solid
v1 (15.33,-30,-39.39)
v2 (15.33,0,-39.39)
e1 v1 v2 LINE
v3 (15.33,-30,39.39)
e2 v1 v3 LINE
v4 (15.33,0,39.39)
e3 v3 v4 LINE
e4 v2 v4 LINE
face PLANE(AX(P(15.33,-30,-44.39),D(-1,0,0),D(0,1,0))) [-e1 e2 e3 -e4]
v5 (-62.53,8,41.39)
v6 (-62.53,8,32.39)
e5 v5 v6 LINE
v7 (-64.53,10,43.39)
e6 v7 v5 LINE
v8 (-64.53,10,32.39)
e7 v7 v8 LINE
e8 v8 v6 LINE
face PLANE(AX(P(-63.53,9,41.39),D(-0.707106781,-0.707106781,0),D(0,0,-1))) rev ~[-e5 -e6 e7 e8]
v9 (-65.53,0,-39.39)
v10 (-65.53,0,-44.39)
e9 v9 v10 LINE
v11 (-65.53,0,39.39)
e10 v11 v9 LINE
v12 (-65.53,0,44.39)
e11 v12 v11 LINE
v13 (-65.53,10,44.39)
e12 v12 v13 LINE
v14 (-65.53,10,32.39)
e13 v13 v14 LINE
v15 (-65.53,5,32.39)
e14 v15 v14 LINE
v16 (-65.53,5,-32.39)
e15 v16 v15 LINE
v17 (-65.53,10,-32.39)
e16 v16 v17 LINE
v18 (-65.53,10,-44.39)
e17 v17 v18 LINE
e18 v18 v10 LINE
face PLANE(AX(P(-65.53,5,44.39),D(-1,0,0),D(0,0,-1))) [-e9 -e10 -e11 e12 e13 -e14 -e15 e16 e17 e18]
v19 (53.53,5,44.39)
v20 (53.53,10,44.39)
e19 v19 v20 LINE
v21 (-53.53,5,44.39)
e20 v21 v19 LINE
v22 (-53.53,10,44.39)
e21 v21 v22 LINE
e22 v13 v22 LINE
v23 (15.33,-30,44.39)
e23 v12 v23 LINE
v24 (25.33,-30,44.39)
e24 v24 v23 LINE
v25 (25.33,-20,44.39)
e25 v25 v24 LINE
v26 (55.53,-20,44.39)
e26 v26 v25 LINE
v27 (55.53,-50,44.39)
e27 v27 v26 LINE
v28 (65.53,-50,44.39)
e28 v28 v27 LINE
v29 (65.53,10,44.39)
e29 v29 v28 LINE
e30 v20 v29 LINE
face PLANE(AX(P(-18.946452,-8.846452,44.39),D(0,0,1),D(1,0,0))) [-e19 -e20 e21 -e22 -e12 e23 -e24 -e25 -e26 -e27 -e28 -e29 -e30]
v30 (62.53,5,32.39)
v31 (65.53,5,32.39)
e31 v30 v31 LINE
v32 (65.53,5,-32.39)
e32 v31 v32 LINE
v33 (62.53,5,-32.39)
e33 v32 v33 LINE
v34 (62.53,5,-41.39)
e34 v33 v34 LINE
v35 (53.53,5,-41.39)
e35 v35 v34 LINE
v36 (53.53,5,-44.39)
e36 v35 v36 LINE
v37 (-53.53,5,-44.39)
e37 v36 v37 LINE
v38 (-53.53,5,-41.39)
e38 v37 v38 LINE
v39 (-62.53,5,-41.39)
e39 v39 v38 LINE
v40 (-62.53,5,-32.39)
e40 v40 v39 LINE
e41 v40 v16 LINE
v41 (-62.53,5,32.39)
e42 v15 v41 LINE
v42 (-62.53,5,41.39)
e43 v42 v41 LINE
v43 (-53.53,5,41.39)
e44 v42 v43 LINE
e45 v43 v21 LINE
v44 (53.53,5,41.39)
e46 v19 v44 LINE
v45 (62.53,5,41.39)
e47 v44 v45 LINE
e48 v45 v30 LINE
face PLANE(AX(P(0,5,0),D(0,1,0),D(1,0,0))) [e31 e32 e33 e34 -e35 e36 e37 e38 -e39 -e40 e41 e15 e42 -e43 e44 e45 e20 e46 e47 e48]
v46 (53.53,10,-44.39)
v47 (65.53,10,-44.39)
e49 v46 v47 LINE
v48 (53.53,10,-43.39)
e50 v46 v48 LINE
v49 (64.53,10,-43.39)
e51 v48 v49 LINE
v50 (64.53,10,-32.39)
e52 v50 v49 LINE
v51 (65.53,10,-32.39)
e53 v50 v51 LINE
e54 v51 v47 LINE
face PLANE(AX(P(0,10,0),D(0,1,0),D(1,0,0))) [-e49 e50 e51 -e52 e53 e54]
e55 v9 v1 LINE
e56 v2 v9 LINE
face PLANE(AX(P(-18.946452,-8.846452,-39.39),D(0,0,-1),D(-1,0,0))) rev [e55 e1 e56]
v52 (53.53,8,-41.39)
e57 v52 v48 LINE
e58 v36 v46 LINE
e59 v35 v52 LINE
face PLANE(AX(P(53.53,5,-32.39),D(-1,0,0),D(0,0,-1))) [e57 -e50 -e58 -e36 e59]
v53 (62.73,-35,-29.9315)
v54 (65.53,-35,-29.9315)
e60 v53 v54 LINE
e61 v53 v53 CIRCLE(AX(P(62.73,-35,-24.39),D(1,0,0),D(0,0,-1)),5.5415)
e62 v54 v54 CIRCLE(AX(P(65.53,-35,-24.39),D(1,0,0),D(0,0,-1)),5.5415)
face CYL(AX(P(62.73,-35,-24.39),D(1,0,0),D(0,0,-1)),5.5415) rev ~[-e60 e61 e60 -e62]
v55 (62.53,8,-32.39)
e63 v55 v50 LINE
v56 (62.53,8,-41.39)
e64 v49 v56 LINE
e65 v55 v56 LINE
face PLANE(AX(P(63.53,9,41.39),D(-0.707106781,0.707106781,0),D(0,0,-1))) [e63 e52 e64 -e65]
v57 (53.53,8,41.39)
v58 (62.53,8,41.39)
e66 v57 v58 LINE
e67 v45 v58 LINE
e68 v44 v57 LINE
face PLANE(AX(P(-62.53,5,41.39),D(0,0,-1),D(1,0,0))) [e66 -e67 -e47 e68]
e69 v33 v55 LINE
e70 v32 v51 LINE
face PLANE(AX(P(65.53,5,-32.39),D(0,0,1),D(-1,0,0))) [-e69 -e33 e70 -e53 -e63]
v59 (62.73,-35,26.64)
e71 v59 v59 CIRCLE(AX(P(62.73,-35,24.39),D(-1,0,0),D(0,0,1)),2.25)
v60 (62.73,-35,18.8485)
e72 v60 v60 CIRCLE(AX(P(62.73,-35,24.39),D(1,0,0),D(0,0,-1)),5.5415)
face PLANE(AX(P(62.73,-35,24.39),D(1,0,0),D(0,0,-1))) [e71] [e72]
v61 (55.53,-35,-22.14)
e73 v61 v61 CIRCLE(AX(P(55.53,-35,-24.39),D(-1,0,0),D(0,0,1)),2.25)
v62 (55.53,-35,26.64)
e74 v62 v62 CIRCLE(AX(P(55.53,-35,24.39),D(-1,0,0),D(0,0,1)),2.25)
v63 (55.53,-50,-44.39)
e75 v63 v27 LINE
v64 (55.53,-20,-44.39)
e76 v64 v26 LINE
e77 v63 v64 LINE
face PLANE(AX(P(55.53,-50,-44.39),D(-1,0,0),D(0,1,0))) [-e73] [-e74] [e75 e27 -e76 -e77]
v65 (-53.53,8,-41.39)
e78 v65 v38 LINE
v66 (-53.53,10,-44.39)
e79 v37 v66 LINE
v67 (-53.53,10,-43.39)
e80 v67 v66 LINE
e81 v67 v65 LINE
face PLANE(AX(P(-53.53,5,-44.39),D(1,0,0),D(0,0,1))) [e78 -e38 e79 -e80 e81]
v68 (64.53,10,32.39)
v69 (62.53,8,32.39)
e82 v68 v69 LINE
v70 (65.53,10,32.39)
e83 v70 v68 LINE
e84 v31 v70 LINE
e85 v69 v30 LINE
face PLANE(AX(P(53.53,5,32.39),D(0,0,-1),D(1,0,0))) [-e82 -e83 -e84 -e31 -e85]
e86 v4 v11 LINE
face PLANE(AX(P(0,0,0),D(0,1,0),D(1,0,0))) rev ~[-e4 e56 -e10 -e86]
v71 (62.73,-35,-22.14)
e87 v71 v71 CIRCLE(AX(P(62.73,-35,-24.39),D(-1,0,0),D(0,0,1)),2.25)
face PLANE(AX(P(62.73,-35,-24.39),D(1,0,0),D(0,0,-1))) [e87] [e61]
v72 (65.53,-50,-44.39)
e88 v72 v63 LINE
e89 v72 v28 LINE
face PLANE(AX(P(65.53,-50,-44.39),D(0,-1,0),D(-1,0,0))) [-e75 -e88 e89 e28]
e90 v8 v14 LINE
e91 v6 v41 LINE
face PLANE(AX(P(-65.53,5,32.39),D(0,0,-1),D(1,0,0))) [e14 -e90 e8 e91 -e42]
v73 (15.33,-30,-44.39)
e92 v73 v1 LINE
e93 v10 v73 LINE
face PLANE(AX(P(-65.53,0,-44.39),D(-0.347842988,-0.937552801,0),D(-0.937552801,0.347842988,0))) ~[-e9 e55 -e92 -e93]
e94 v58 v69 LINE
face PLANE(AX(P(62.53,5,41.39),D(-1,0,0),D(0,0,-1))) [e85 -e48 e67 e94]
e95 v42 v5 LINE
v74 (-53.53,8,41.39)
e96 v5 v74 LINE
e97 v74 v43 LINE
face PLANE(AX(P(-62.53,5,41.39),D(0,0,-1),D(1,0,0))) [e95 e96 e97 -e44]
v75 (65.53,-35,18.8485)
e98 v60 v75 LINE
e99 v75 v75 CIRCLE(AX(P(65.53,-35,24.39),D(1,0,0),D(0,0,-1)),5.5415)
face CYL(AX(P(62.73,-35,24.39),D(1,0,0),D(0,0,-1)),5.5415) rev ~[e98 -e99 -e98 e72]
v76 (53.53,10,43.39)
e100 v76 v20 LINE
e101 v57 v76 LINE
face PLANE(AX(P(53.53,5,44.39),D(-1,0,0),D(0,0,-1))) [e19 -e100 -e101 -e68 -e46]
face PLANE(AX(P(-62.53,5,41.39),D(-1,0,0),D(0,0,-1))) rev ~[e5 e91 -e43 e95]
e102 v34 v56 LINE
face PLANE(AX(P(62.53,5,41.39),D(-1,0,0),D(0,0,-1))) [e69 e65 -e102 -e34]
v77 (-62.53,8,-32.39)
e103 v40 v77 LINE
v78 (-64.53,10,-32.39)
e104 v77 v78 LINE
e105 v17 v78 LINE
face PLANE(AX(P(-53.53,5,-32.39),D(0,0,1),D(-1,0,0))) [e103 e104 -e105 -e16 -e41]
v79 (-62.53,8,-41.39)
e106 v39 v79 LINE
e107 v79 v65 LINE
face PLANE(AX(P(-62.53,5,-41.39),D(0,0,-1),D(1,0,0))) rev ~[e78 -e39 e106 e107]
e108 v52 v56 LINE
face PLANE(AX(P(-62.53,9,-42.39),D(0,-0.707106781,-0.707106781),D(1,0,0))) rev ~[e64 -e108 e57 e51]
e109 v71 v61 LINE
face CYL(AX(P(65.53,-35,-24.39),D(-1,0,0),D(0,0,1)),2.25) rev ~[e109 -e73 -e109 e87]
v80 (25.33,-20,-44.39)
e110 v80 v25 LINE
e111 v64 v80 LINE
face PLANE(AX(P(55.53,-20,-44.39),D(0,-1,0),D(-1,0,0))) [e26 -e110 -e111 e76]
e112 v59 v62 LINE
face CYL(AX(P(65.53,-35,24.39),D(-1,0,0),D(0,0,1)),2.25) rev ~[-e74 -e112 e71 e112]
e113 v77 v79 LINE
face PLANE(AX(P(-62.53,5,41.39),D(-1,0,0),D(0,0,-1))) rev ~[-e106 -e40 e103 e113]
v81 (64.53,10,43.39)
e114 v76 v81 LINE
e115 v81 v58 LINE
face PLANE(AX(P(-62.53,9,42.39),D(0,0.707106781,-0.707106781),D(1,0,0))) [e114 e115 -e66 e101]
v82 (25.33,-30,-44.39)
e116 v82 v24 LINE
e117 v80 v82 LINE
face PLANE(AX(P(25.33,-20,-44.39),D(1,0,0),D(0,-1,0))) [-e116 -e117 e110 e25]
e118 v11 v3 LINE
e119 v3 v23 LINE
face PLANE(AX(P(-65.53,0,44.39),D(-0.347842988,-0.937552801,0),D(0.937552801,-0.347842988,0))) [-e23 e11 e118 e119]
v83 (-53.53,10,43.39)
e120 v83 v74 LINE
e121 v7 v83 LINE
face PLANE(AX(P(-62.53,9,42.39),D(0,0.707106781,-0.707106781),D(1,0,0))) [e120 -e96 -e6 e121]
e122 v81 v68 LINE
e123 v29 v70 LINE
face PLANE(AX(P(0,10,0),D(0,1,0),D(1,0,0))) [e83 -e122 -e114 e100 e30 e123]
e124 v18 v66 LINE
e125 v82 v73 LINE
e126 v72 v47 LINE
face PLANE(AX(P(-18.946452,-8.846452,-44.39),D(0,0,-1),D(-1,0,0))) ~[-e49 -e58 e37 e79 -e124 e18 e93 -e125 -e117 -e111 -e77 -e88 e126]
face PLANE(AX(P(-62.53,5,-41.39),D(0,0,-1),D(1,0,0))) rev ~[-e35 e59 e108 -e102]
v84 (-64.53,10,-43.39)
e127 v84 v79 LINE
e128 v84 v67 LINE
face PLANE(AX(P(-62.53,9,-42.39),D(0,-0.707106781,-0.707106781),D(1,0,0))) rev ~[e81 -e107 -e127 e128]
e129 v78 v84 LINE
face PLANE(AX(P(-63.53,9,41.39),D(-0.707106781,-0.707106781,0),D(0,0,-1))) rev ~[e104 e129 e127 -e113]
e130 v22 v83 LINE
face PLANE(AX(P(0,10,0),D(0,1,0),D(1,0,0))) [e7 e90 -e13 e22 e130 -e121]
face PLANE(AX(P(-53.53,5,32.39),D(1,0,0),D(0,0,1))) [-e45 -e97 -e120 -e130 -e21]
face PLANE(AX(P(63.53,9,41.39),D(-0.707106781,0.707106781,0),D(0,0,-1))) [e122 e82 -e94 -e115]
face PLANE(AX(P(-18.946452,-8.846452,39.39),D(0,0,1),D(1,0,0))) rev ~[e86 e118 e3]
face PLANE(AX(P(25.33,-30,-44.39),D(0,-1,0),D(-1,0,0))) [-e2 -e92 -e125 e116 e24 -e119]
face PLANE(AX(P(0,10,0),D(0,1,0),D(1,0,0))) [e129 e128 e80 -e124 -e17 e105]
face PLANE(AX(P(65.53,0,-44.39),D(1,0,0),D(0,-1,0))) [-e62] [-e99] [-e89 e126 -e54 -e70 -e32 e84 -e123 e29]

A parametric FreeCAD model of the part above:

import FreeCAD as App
import Part
import Sketcher


def edges_at(feature, points):
    """Names of the edges that pass closest to the given points."""
    edges = feature.Shape.Edges
    near = lambda p: min(range(len(edges)), key=lambda i: edges[i].distToShape(Part.Vertex(*p))[0])
    return sorted({f"Edge{near(p) + 1}" for p in points})

doc = App.newDocument("Part")
body = doc.addObject("PartDesign::Body", "Body")

# Sketch on XZ plane
sketch1 = body.newObject("Sketcher::SketchObject", "Sketch")
sketch1.AttachmentSupport = (doc.getObject("XZ_Plane"), [""])
sketch1.MapMode = "FlatFace"
sketch1.addGeometry([
    Part.LineSegment(App.Vector(-66, -44, 0), App.Vector(-66, 44, 0)),
    Part.LineSegment(App.Vector(-66, 44, 0), App.Vector(66, 44, 0)),
    Part.LineSegment(App.Vector(66, 44, 0), App.Vector(66, -44, 0)),
    Part.LineSegment(App.Vector(66, -44, 0), App.Vector(-66, -44, 0)),
], False)
sketch1.addConstraint([
    Sketcher.Constraint("Coincident", 0, 2, 1, 1),
    Sketcher.Constraint("Coincident", 1, 2, 2, 1),
    Sketcher.Constraint("Coincident", 2, 2, 3, 1),
    Sketcher.Constraint("Coincident", 3, 2, 0, 1),
    Sketcher.Constraint("Vertical", 0),
    Sketcher.Constraint("Horizontal", 1),
    Sketcher.Constraint("Vertical", 2),
    Sketcher.Constraint("Horizontal", 3),
    Sketcher.Constraint("Symmetric", 0, 2, 2, 2, -1, 1),
    Sketcher.Constraint("DistanceX", 1, 1, 1, 2, 131.06),
    Sketcher.Constraint("DistanceY", 0, 1, 0, 2, 88.78),
])
pad1 = body.newObject("PartDesign::Pad", "Pad")
pad1.Profile = sketch1
pad1.Length = 5
pad1.Reversed = True

# Sketch on XZ plane
sketch2 = body.newObject("Sketcher::SketchObject", "Sketch001")
sketch2.AttachmentSupport = (doc.getObject("XZ_Plane"), [""])
sketch2.MapMode = "FlatFace"
sketch2.AttachmentOffset = App.Placement(App.Vector(0, 0, -5), App.Rotation())
sketch2.addGeometry([
    Part.LineSegment(App.Vector(-66, -44, 0), App.Vector(-66, 44, 0)),  # 0
    Part.LineSegment(App.Vector(-66, 44, 0), App.Vector(66, 44, 0)),  # 1
    Part.LineSegment(App.Vector(66, 44, 0), App.Vector(66, -44, 0)),  # 2
    Part.LineSegment(App.Vector(66, -44, 0), App.Vector(-66, -44, 0)),  # 3
    Part.LineSegment(App.Vector(63, 41, 0), App.Vector(-63, 41, 0)),  # 4
    Part.LineSegment(App.Vector(-63, 41, 0), App.Vector(-63, -41, 0)),  # 5
    Part.LineSegment(App.Vector(-63, -41, 0), App.Vector(63, -41, 0)),  # 6
    Part.LineSegment(App.Vector(63, -41, 0), App.Vector(63, 41, 0)),  # 7
], False)
sketch2.addConstraint([
    Sketcher.Constraint("Coincident", 0, 2, 1, 1),
    Sketcher.Constraint("Coincident", 1, 2, 2, 1),
    Sketcher.Constraint("Coincident", 2, 2, 3, 1),
    Sketcher.Constraint("Coincident", 3, 2, 0, 1),
    Sketcher.Constraint("Coincident", 4, 2, 5, 1),
    Sketcher.Constraint("Coincident", 5, 2, 6, 1),
    Sketcher.Constraint("Coincident", 6, 2, 7, 1),
    Sketcher.Constraint("Coincident", 7, 2, 4, 1),
    Sketcher.Constraint("Vertical", 0),
    Sketcher.Constraint("Horizontal", 1),
    Sketcher.Constraint("Vertical", 2),
    Sketcher.Constraint("Horizontal", 3),
    Sketcher.Constraint("Horizontal", 4),
    Sketcher.Constraint("Vertical", 5),
    Sketcher.Constraint("Horizontal", 6),
    Sketcher.Constraint("Vertical", 7),
    Sketcher.Constraint("Symmetric", 0, 2, 2, 2, -1, 1),
    Sketcher.Constraint("Symmetric", 4, 2, 6, 2, -1, 1),
    Sketcher.Constraint("DistanceX", 0, 2, 4, 2, 3.0),
    Sketcher.Constraint("DistanceY", 4, 2, 0, 2, 3.0),
    Sketcher.Constraint("DistanceX", 1, 1, 1, 2, 131.06),
    Sketcher.Constraint("DistanceY", 0, 1, 0, 2, 88.78),
])
pad2 = body.newObject("PartDesign::Pad", "Pad001")
pad2.Profile = sketch2
pad2.Length = 5
pad2.Reversed = True
doc.recompute()

chamfer = body.newObject("PartDesign::Chamfer", "Chamfer")
chamfer.Base = (pad2, edges_at(pad2, [
    (62.53, 10, 0),
    (0, 10, -41.39),
    (-62.53, 10, 0),
    (0, 10, 41.39),
]))
chamfer.Size = 2

# Sketch on XZ plane
sketch3 = body.newObject("Sketcher::SketchObject", "Sketch002")
sketch3.AttachmentSupport = (doc.getObject("XZ_Plane"), [""])
sketch3.MapMode = "FlatFace"
sketch3.AttachmentOffset = App.Placement(App.Vector(0, 0, -5), App.Rotation())
sketch3.addGeometry([
    Part.LineSegment(App.Vector(-66, -32, 0), App.Vector(-66, 32, 0)),  # 0
    Part.LineSegment(App.Vector(-66, 32, 0), App.Vector(-54, 32, 0)),  # 1
    Part.LineSegment(App.Vector(-54, 32, 0), App.Vector(-54, 44, 0)),  # 2
    Part.LineSegment(App.Vector(-54, 44, 0), App.Vector(54, 44, 0)),  # 3
    Part.LineSegment(App.Vector(54, 44, 0), App.Vector(54, 32, 0)),  # 4
    Part.LineSegment(App.Vector(54, 32, 0), App.Vector(66, 32, 0)),  # 5
    Part.LineSegment(App.Vector(66, 32, 0), App.Vector(66, -32, 0)),  # 6
    Part.LineSegment(App.Vector(66, -32, 0), App.Vector(54, -32, 0)),  # 7
    Part.LineSegment(App.Vector(54, -32, 0), App.Vector(54, -44, 0)),  # 8
    Part.LineSegment(App.Vector(54, -44, 0), App.Vector(-54, -44, 0)),  # 9
    Part.LineSegment(App.Vector(-54, -44, 0), App.Vector(-54, -32, 0)),  # 10
    Part.LineSegment(App.Vector(-54, -32, 0), App.Vector(-66, -32, 0)),  # 11
], False)
sketch3.addConstraint([
    Sketcher.Constraint("Coincident", 0, 2, 1, 1),
    Sketcher.Constraint("Coincident", 1, 2, 2, 1),
    Sketcher.Constraint("Coincident", 2, 2, 3, 1),
    Sketcher.Constraint("Coincident", 3, 2, 4, 1),
    Sketcher.Constraint("Coincident", 4, 2, 5, 1),
    Sketcher.Constraint("Coincident", 5, 2, 6, 1),
    Sketcher.Constraint("Coincident", 6, 2, 7, 1),
    Sketcher.Constraint("Coincident", 7, 2, 8, 1),
    Sketcher.Constraint("Coincident", 8, 2, 9, 1),
    Sketcher.Constraint("Coincident", 9, 2, 10, 1),
    Sketcher.Constraint("Coincident", 10, 2, 11, 1),
    Sketcher.Constraint("Coincident", 11, 2, 0, 1),
    Sketcher.Constraint("Vertical", 0),
    Sketcher.Constraint("Horizontal", 1),
    Sketcher.Constraint("Vertical", 2),
    Sketcher.Constraint("Horizontal", 3),
    Sketcher.Constraint("Vertical", 4),
    Sketcher.Constraint("Horizontal", 5),
    Sketcher.Constraint("Vertical", 6),
    Sketcher.Constraint("Horizontal", 7),
    Sketcher.Constraint("Vertical", 8),
    Sketcher.Constraint("Horizontal", 9),
    Sketcher.Constraint("Vertical", 10),
    Sketcher.Constraint("Horizontal", 11),
    Sketcher.Constraint("Symmetric", 0, 2, 6, 2, -1, 1),
    Sketcher.Constraint("Symmetric", 2, 2, 8, 2, -1, 1),
    Sketcher.Constraint("Symmetric", 4, 2, 10, 2, -1, 1),
    Sketcher.Constraint("Symmetric", 1, 2, 4, 2, -2),
    Sketcher.Constraint("Equal", 11, 2),
    Sketcher.Constraint("DistanceX", 1, 1, 1, 2, 12.0),
    Sketcher.Constraint("DistanceX", 3, 1, 3, 2, 107.06),
    Sketcher.Constraint("DistanceY", 0, 1, 0, 2, 64.78),
])
pocket1 = body.newObject("PartDesign::Pocket", "Pocket")
pocket1.Profile = sketch3
pocket1.Type = "ThroughAll"

# Sketch on XY plane
sketch4 = body.newObject("Sketcher::SketchObject", "Sketch003")
sketch4.AttachmentSupport = (doc.getObject("XY_Plane"), [""])
sketch4.MapMode = "FlatFace"
sketch4.AttachmentOffset = App.Placement(App.Vector(0, 0, -44.39), App.Rotation())
sketch4.addGeometry([
    Part.LineSegment(App.Vector(66, -50, 0), App.Vector(66, 0, 0)),  # 0
    Part.LineSegment(App.Vector(66, 0, 0), App.Vector(15, 0, 0)),  # 1
    Part.LineSegment(App.Vector(15, 0, 0), App.Vector(15, -30, 0)),  # 2
    Part.LineSegment(App.Vector(15, -30, 0), App.Vector(25, -30, 0)),  # 3
    Part.LineSegment(App.Vector(25, -30, 0), App.Vector(25, -20, 0)),  # 4
    Part.LineSegment(App.Vector(25, -20, 0), App.Vector(56, -20, 0)),  # 5
    Part.LineSegment(App.Vector(56, -20, 0), App.Vector(56, -50, 0)),  # 6
    Part.LineSegment(App.Vector(56, -50, 0), App.Vector(66, -50, 0)),  # 7
], False)
sketch4.addConstraint([
    Sketcher.Constraint("Coincident", 0, 2, 1, 1),
    Sketcher.Constraint("Coincident", 1, 2, 2, 1),
    Sketcher.Constraint("Coincident", 2, 2, 3, 1),
    Sketcher.Constraint("Coincident", 3, 2, 4, 1),
    Sketcher.Constraint("Coincident", 4, 2, 5, 1),
    Sketcher.Constraint("Coincident", 5, 2, 6, 1),
    Sketcher.Constraint("Coincident", 6, 2, 7, 1),
    Sketcher.Constraint("Coincident", 7, 2, 0, 1),
    Sketcher.Constraint("Vertical", 0),
    Sketcher.Constraint("Horizontal", 1),
    Sketcher.Constraint("Vertical", 2),
    Sketcher.Constraint("Horizontal", 3),
    Sketcher.Constraint("Vertical", 4),
    Sketcher.Constraint("Horizontal", 5),
    Sketcher.Constraint("Vertical", 6),
    Sketcher.Constraint("Horizontal", 7),
    Sketcher.Constraint("PointOnObject", 0, 2, -1),
    Sketcher.Constraint("Equal", 3, 7),
    Sketcher.Constraint("Equal", 7, 4),
    Sketcher.Constraint("Equal", 2, 6),
    Sketcher.Constraint("DistanceX", 3, 1, 3, 2, 10.0),
    Sketcher.Constraint("DistanceY", 0, 1, 0, 2, 50.0),
    Sketcher.Constraint("DistanceX", 1, 2, 1, 1, 50.2),
    Sketcher.Constraint("DistanceX", -1, 1, 0, 2, 65.53),
])
pad3 = body.newObject("PartDesign::Pad", "Pad002")
pad3.Profile = sketch4
pad3.Length = 88.78

# Sketch on XY plane
sketch5 = body.newObject("Sketcher::SketchObject", "Sketch004")
sketch5.AttachmentSupport = (doc.getObject("XY_Plane"), [""])
sketch5.MapMode = "FlatFace"
sketch5.AttachmentOffset = App.Placement(App.Vector(0, 0, 44.39), App.Rotation())
sketch5.addGeometry([
    Part.LineSegment(App.Vector(-66, 0, 0), App.Vector(15, -30, 0)),
    Part.LineSegment(App.Vector(15, -30, 0), App.Vector(15, 0, 0)),
    Part.LineSegment(App.Vector(15, 0, 0), App.Vector(-66, 0, 0)),
], False)
sketch5.addConstraint([
    Sketcher.Constraint("Coincident", 0, 2, 1, 1),
    Sketcher.Constraint("Coincident", 1, 2, 2, 1),
    Sketcher.Constraint("Coincident", 2, 2, 0, 1),
    Sketcher.Constraint("Vertical", 1),
    Sketcher.Constraint("Horizontal", 2),
    Sketcher.Constraint("PointOnObject", 1, 2, -1),
    Sketcher.Constraint("DistanceY", 1, 1, 1, 2, 30.0),
    Sketcher.Constraint("DistanceX", 2, 2, 2, 1, 80.86),
    Sketcher.Constraint("DistanceX", -1, 1, 0, 2, 15.33),
])
pad4 = body.newObject("PartDesign::Pad", "Pad003")
pad4.Profile = sketch5
pad4.Length = 5
pad4.Reversed = True
doc.recompute()

mirrored = body.newObject("PartDesign::Mirrored", "Mirrored")
mirrored.Originals = [pad4]
mirrored.MirrorPlane = (doc.getObject("XY_Plane"), [""])
body.Tip = mirrored

# Sketch on YZ plane
sketch6 = body.newObject("Sketcher::SketchObject", "Sketch005")
sketch6.AttachmentSupport = (doc.getObject("YZ_Plane"), [""])
sketch6.MapMode = "FlatFace"
sketch6.AttachmentOffset = App.Placement(App.Vector(0, 0, 65.53), App.Rotation())
sketch6.addGeometry([
    Part.Circle(App.Vector(-35, 24.4, 0), App.Vector(0, 0, 1), 2.2),
    Part.Circle(App.Vector(-35, -24.4, 0), App.Vector(0, 0, 1), 2.2),
], False)
sketch6.addConstraint([
    Sketcher.Constraint("Equal", 0, 1),
    Sketcher.Constraint("Symmetric", 0, 3, 1, 3, -1),
    Sketcher.Constraint("Diameter", 0, 4.5),
    Sketcher.Constraint("DistanceX", 0, 3, -1, 1, 35.0),
    Sketcher.Constraint("DistanceY", -1, 1, 0, 3, 24.39),
])
doc.recompute()
hole = body.newObject("PartDesign::Hole", "Hole")
hole.Profile = sketch6
hole.ThreadType = "None"
hole.Diameter = 4.5
hole.DepthType = "ThroughAll"
hole.HoleCutType = "Counterbore"
hole.HoleCutDiameter = 11.083
hole.HoleCutDepth = 2.8

doc.recompute()
